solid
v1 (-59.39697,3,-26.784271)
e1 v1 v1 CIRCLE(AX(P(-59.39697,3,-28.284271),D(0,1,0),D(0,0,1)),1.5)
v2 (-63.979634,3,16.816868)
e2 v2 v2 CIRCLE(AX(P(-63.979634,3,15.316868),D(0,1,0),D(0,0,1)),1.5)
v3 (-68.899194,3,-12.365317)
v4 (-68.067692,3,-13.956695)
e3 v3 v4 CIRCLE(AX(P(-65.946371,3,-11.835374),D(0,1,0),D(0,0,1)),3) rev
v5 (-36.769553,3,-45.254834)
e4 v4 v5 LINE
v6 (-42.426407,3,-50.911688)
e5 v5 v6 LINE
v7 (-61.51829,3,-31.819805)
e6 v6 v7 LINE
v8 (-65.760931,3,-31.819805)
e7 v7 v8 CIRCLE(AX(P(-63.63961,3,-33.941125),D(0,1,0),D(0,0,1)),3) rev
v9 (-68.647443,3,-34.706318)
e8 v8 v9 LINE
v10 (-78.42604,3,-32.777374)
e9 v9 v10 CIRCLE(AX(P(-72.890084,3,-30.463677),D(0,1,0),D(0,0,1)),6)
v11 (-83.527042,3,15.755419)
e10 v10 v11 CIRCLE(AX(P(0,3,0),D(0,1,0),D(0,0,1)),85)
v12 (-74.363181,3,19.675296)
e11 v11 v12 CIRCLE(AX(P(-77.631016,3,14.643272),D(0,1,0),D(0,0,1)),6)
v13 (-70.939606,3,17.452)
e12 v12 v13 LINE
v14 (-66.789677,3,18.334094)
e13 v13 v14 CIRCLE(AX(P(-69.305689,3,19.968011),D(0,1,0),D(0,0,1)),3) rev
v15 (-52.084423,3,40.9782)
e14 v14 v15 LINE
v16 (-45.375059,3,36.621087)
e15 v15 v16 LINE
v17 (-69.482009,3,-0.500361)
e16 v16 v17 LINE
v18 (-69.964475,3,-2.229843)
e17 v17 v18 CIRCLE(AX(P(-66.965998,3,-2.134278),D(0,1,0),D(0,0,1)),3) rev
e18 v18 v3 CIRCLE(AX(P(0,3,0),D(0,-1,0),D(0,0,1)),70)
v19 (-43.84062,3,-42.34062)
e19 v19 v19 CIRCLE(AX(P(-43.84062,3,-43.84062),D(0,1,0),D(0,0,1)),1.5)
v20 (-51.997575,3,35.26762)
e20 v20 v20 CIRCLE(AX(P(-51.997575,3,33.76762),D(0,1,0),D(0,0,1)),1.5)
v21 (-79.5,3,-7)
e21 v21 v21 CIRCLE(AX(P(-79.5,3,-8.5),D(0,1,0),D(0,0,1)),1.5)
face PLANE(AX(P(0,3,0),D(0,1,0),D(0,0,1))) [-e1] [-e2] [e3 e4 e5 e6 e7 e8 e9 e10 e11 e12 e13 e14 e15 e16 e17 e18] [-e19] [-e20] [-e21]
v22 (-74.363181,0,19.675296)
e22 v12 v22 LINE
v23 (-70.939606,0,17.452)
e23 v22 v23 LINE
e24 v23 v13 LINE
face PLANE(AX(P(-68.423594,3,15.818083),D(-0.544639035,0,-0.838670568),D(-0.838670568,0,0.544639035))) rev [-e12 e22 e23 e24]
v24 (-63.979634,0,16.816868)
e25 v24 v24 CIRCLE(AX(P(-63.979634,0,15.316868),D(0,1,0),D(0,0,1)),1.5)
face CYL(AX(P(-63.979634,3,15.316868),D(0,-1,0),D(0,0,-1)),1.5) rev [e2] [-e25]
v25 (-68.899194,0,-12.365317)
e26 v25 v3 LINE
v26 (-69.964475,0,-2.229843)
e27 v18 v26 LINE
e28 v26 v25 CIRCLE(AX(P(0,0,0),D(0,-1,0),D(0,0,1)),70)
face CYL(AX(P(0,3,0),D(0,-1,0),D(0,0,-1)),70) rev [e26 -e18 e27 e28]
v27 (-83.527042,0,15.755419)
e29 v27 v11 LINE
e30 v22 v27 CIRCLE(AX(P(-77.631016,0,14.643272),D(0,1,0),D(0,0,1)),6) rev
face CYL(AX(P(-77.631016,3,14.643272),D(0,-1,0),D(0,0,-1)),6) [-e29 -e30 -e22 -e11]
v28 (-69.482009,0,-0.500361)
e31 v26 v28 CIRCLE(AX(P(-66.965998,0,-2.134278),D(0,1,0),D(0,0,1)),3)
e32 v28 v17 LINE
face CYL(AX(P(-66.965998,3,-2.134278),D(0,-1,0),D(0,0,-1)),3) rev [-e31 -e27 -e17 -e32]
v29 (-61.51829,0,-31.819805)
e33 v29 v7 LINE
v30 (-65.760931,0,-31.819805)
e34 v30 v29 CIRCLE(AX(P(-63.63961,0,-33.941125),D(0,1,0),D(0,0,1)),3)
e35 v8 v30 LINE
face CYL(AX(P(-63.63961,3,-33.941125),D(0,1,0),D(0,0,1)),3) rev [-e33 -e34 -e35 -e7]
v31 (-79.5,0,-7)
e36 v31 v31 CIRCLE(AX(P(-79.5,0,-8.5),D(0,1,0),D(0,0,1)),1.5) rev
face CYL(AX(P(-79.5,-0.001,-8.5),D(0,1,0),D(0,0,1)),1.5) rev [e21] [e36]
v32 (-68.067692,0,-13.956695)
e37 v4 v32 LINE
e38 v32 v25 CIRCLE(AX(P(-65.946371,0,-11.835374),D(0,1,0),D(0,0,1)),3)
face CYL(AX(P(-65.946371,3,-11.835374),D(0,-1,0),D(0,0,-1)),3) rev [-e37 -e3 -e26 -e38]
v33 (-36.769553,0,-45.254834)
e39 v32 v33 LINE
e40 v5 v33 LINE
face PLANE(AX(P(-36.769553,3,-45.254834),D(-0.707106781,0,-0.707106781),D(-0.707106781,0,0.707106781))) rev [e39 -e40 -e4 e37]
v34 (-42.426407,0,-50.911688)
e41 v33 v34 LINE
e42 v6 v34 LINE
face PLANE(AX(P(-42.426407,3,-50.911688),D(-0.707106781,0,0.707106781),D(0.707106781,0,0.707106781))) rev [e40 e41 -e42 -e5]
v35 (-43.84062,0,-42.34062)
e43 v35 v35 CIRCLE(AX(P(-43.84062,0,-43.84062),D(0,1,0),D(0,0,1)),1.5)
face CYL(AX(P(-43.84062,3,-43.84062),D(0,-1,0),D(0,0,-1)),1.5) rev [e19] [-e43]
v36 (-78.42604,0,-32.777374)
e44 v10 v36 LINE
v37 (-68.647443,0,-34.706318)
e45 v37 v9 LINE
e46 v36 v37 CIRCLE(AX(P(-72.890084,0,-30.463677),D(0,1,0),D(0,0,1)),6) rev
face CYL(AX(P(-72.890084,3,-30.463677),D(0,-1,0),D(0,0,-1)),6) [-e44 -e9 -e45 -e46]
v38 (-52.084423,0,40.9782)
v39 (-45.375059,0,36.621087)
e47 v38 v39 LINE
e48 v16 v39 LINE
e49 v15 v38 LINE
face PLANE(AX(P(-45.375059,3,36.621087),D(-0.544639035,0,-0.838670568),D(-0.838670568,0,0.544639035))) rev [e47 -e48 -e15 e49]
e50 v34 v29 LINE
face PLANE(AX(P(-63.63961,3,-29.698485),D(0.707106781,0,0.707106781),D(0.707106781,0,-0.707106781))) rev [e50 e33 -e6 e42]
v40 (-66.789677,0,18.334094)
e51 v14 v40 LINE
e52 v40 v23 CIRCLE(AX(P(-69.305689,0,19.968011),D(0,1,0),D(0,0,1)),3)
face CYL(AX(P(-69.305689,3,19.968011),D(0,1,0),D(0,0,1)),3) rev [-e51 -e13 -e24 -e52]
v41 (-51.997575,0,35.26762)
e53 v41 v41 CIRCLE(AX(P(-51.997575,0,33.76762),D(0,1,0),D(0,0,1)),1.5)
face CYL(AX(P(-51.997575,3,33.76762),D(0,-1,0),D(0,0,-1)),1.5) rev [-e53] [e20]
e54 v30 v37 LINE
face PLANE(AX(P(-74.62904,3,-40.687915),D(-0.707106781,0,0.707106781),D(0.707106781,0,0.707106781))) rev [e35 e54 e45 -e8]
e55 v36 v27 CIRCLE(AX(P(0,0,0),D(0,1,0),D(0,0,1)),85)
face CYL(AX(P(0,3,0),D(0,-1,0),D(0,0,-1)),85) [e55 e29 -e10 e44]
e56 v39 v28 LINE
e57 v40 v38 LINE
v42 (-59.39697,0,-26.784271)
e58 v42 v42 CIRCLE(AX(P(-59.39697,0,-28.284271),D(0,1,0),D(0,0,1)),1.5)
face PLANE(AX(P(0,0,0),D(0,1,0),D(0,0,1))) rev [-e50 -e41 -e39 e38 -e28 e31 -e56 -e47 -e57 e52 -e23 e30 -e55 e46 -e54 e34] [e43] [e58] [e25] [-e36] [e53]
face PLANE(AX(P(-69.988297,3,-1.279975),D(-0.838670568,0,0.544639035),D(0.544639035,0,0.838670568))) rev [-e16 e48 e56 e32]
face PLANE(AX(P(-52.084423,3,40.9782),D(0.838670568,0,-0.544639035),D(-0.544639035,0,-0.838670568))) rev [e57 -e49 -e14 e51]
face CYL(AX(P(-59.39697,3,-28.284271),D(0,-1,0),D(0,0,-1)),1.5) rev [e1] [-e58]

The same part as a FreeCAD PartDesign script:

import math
import FreeCAD as App
import Part
import Sketcher

V = App.Vector
Q = App.Units.Quantity


def edges_at(feature, points):
    """Names of the edges that pass closest to the given points."""
    edges = feature.Shape.Edges
    near = lambda p: min(range(len(edges)), key=lambda i: edges[i].distToShape(Part.Vertex(*p))[0])
    return sorted({f"Edge{near(p) + 1}" for p in points})

doc = App.newDocument("Part")
params = doc.addObject("Spreadsheet::Sheet", "Params")
for row, (alias, value) in enumerate([
    ("sketch1_diameter", "3 mm"),
    ("sketch1_radius", "85 mm"),
    ("sketch1_radius2", "70 mm"),
    ("sketch1_length", "30 mm"),
    ("sketch1_length2", "8 mm"),
    ("pad1_length", "3 mm"),
    ("fillet_radius", "6 mm"),
    ("fillet2_radius", "3 mm"),
    ("sketch2_diameter", "3 mm"),
], start=1):
    params.set(f"A{row}", alias)
    params.set(f"B{row}", "=" + value)
    params.setAlias(f"B{row}", alias)

body = doc.addObject("PartDesign::Body", "Body")

sketch1 = doc.addObject("Sketcher::SketchObject", "Sketch")
body.addObject(sketch1)
sketch1.AttachmentSupport = (doc.XZ_Plane, [""])
sketch1.MapMode = "FlatFace"
sketch1.addGeometry([
    Part.LineSegment(V(-63.6, -29.7, 0), V(-74.6, -40.7, 0)),
    Part.ArcOfCircle(Part.Circle(V(0, 0, 0), V(0, 0, 1), 85), math.radians(163), math.radians(209)),
    Part.LineSegment(V(-81.5, 24.3, 0), V(-68.4, 15.8, 0)),
    Part.LineSegment(V(-68.4, 15.8, 0), V(-52.1, 41, 0)),
    Part.LineSegment(V(-52.1, 41, 0), V(-45.4, 36.6, 0)),
    Part.LineSegment(V(-45.4, 36.6, 0), V(-70, -1.3, 0)),
    Part.ArcOfCircle(Part.Circle(V(0, 0, 0), V(0, 0, 1), 70), math.radians(-178.95), math.radians(-169.05)),
    Part.LineSegment(V(-68.7, -13.3, 0), V(-36.8, -45.3, 0)),
    Part.LineSegment(V(-36.8, -45.3, 0), V(-42.4, -50.9, 0)),
    Part.LineSegment(V(-42.4, -50.9, 0), V(-63.6, -29.7, 0)),
    Part.Circle(V(-52, 33.8, 0), V(0, 0, 1), 1.5),
    Part.Circle(V(-64, 15.3, 0), V(0, 0, 1), 1.5),
    Part.Circle(V(-43.8, -43.8, 0), V(0, 0, 1), 1.5),
    Part.Circle(V(-59.4, -28.3, 0), V(0, 0, 1), 1.5),
], False)
sketch1.addConstraint([
    Sketcher.Constraint("Coincident", 0, 2, 1, 2),
    Sketcher.Constraint("Coincident", 1, 1, 2, 1),
    Sketcher.Constraint("Coincident", 2, 2, 3, 1),
    Sketcher.Constraint("Coincident", 3, 2, 4, 1),
    Sketcher.Constraint("Coincident", 4, 2, 5, 1),
    Sketcher.Constraint("Coincident", 5, 2, 6, 1),
    Sketcher.Constraint("Coincident", 6, 2, 7, 1),
    Sketcher.Constraint("Coincident", 7, 2, 8, 1),
    Sketcher.Constraint("Coincident", 8, 2, 9, 1),
    Sketcher.Constraint("Coincident", 9, 2, 0, 1),
    Sketcher.Constraint("Coincident", 1, 3, -1, 1),
    Sketcher.Constraint("Coincident", 6, 3, -1, 1),
    Sketcher.Constraint("Equal", 10, 11),
    Sketcher.Constraint("Equal", 11, 12),
    Sketcher.Constraint("Equal", 12, 13),
    Sketcher.Constraint("Perpendicular", 2, 3),
    Sketcher.Constraint("Perpendicular", 3, 4),
    Sketcher.Constraint("Perpendicular", 4, 5),
    Sketcher.Constraint("Perpendicular", 0, 7),
    Sketcher.Constraint("Perpendicular", 7, 8),
    Sketcher.Constraint("Perpendicular", 8, 9),
    Sketcher.Constraint("Equal", 0, 2),
    Sketcher.Constraint("Equal", 5, 7),
    Sketcher.Constraint("Equal", 4, 8),
    Sketcher.Constraint("Equal", 3, 9),
    Sketcher.Constraint("Diameter", 10, Q("3 mm")),
    Sketcher.Constraint("Radius", 1, Q("85 mm")),
    Sketcher.Constraint("Radius", 6, Q("70 mm")),
    Sketcher.Constraint("Angle", 0, Q("-135 deg")),
    Sketcher.Constraint("Angle", 2, Q("-33 deg")),
    Sketcher.Constraint("Distance", 3, Q("30 mm")),
    Sketcher.Constraint("Distance", 4, Q("8 mm")),
    Sketcher.Constraint("Distance", 0, Q("15.541401 mm")),
    Sketcher.Constraint("DistanceY", -1, 1, 3, 2, Q("40.9782 mm")),
    Sketcher.Constraint("DistanceY", -1, 1, 10, 3, Q("33.76762 mm")),
    Sketcher.Constraint("DistanceX", 12, 3, -1, 1, Q("43.84062 mm")),
    Sketcher.Constraint("DistanceY", 12, 3, -1, 1, Q("43.84062 mm")),
    Sketcher.Constraint("DistanceX", 13, 3, -1, 1, Q("59.39697 mm")),
    Sketcher.Constraint("DistanceY", 13, 3, -1, 1, Q("28.284271 mm")),
    Sketcher.Constraint("DistanceX", 11, 3, 10, 3, Q("11.982059 mm")),
    Sketcher.Constraint("DistanceY", 12, 3, 11, 3, Q("59.157488 mm")),
    Sketcher.Constraint("DistanceX", 2, 2, 11, 3, Q("4.44396 mm")),
])
sketch1.setExpression("Constraints[25]", "Params.sketch1_diameter")
sketch1.setExpression("Constraints[26]", "Params.sketch1_radius")
sketch1.setExpression("Constraints[27]", "Params.sketch1_radius2")
sketch1.setExpression("Constraints[30]", "Params.sketch1_length")
sketch1.setExpression("Constraints[31]", "Params.sketch1_length2")
pad1 = doc.addObject("PartDesign::Pad", "Pad")
body.addObject(pad1)
pad1.Profile = sketch1
pad1.setExpression("Length", "Params.pad1_length")
pad1.Reversed = True
doc.recompute()

fillet = doc.addObject("PartDesign::Fillet", "Fillet")
body.addObject(fillet)
fillet.Base = (pad1, edges_at(pad1, [(-74.629, 1.5, -40.688), (-81.458, 1.5, 24.283)]))
fillet.setExpression("Radius", "Params.fillet_radius")
doc.recompute()

fillet2 = doc.addObject("PartDesign::Fillet", "Fillet001")
body.addObject(fillet2)
fillet2.Base = (fillet, edges_at(fillet, [
    (-63.64, 1.5, -29.698),
    (-68.725, 1.5, -13.299),
    (-69.988, 1.5, -1.28),
    (-68.424, 1.5, 15.818),
]))
fillet2.setExpression("Radius", "Params.fillet2_radius")

sketch2 = doc.addObject("Sketcher::SketchObject", "Sketch001")
body.addObject(sketch2)
sketch2.AttachmentSupport = (doc.XZ_Plane, [""])
sketch2.MapMode = "FlatFace"
sketch2.AttachmentOffset = App.Placement(V(0, 0, -3), App.Rotation())
sketch2.addGeometry(Part.Circle(V(-79.5, -8.5, 0), V(0, 0, 1), 1.5), False)
sketch2.addConstraint([
    Sketcher.Constraint("Diameter", 0, Q("3 mm")),
    Sketcher.Constraint("DistanceX", 0, 3, -1, 1, Q("79.5 mm")),
    Sketcher.Constraint("DistanceY", 0, 3, -1, 1, Q("8.5 mm")),
])
sketch2.setExpression("Constraints[0]", "Params.sketch2_diameter")
pocket1 = doc.addObject("PartDesign::Pocket", "Pocket")
body.addObject(pocket1)
pocket1.Profile = sketch2
pocket1.Type = "UpToFirst"
pocket1.Reversed = True

doc.recompute()
